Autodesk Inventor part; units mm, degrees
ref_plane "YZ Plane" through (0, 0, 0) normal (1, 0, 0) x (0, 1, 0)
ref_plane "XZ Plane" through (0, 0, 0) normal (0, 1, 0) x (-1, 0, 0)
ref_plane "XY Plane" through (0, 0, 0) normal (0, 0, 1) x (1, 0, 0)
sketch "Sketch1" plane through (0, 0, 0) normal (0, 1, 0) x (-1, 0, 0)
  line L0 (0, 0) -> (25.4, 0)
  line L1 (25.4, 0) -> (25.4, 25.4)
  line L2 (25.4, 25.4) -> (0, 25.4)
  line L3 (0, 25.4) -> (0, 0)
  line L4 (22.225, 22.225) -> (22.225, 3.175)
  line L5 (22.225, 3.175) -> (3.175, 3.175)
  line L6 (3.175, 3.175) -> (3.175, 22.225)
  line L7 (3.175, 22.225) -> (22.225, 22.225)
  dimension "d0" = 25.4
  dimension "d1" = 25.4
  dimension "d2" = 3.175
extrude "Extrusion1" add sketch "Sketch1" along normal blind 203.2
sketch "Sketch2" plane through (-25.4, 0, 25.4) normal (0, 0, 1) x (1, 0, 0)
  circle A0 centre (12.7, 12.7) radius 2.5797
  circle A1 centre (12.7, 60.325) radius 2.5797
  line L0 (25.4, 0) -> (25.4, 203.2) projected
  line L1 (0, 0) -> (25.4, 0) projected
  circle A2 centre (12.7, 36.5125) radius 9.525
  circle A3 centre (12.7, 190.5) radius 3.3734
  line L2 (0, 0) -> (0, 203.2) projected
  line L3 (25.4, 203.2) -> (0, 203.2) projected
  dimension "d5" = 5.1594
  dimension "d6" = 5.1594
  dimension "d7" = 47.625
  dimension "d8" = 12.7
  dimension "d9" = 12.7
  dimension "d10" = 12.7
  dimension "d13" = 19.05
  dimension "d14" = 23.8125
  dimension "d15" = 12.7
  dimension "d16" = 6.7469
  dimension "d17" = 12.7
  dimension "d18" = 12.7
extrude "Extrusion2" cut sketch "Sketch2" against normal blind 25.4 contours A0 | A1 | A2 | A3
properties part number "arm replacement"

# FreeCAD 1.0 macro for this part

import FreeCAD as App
import Part
import Sketcher
from FreeCAD import Vector
Q = App.Units.Quantity

doc = App.newDocument("Part")
params = doc.addObject("Spreadsheet::Sheet", "Params")
for row, (alias, value) in enumerate([
    ("sketch1_width", "1 in"),
    ("pad1_length", "8 in"),
    ("sketch2_diameter", "0.75 in"),
    ("sketch2_diameter2", "0.203126 in"),
    ("sketch2_diameter3", "0.265622 in"),
    ("pocket1_length", "1 in"),
], start=1):
    params.set(f"A{row}", alias)
    params.set(f"B{row}", "=" + value)
    params.setAlias(f"B{row}", alias)

body = doc.addObject("PartDesign::Body", "Body")

sketch1 = doc.addObject("Sketcher::SketchObject", "Sketch")
body.addObject(sketch1)
sketch1.AttachmentSupport = (doc.XZ_Plane, [""])
sketch1.MapMode = "FlatFace"
sketch1.addGeometry(Part.LineSegment(Vector(0, 25, 0), Vector(0, 0, 0)), False)
sketch1.addGeometry(Part.LineSegment(Vector(0, 0, 0), Vector(-25, 0, 0)), False)
sketch1.addGeometry(Part.LineSegment(Vector(-25, 0, 0), Vector(-25, 25, 0)), False)
sketch1.addGeometry(Part.LineSegment(Vector(-25, 25, 0), Vector(0, 25, 0)), False)
sketch1.addGeometry(Part.LineSegment(Vector(-3, 22, 0), Vector(-22, 22, 0)), False)
sketch1.addGeometry(Part.LineSegment(Vector(-22, 22, 0), Vector(-22, 3, 0)), False)
sketch1.addGeometry(Part.LineSegment(Vector(-22, 3, 0), Vector(-3, 3, 0)), False)
sketch1.addGeometry(Part.LineSegment(Vector(-3, 3, 0), Vector(-3, 22, 0)), False)
sketch1.addConstraint(Sketcher.Constraint("Coincident", 0, 2, 1, 1))
sketch1.addConstraint(Sketcher.Constraint("Coincident", 1, 2, 2, 1))
sketch1.addConstraint(Sketcher.Constraint("Coincident", 2, 2, 3, 1))
sketch1.addConstraint(Sketcher.Constraint("Coincident", 3, 2, 0, 1))
sketch1.addConstraint(Sketcher.Constraint("Coincident", 4, 2, 5, 1))
sketch1.addConstraint(Sketcher.Constraint("Coincident", 5, 2, 6, 1))
sketch1.addConstraint(Sketcher.Constraint("Coincident", 6, 2, 7, 1))
sketch1.addConstraint(Sketcher.Constraint("Coincident", 7, 2, 4, 1))
sketch1.addConstraint(Sketcher.Constraint("Vertical", 0))
sketch1.addConstraint(Sketcher.Constraint("Horizontal", 1))
sketch1.addConstraint(Sketcher.Constraint("Vertical", 2))
sketch1.addConstraint(Sketcher.Constraint("Horizontal", 3))
sketch1.addConstraint(Sketcher.Constraint("Horizontal", 4))
sketch1.addConstraint(Sketcher.Constraint("Vertical", 5))
sketch1.addConstraint(Sketcher.Constraint("Horizontal", 6))
sketch1.addConstraint(Sketcher.Constraint("Vertical", 7))
sketch1.addConstraint(Sketcher.Constraint("Coincident", 0, 2, -1, 1))
sketch1.addConstraint(Sketcher.Constraint("Equal", 3, 0))
sketch1.addConstraint(Sketcher.Constraint("Equal", 6, 5))
sketch1.addConstraint(Sketcher.Constraint("DistanceX", 1, 2, 1, 1, Q("1 in")))
sketch1.addConstraint(Sketcher.Constraint("DistanceY", -1, 1, 5, 2, Q("0.125 in")))
sketch1.addConstraint(Sketcher.Constraint("DistanceX", 6, 2, -1, 1, Q("0.125 in")))
sketch1.addConstraint(Sketcher.Constraint("DistanceX", 2, 2, 4, 2, Q("0.125 in")))
sketch1.setExpression("Constraints[19]", "Params.sketch1_width")
pad1 = doc.addObject("PartDesign::Pad", "Pad")
body.addObject(pad1)
pad1.Profile = sketch1
pad1.setExpression("Length", "Params.pad1_length")
pad1.Reversed = True

sketch2 = doc.addObject("Sketcher::SketchObject", "Sketch001")
body.addObject(sketch2)
sketch2.AttachmentSupport = (doc.XY_Plane, [""])
sketch2.MapMode = "FlatFace"
sketch2.AttachmentOffset = App.Placement(Vector(0, 0, 1 * 25.4), App.Rotation())
sketch2.addGeometry(Part.Circle(Vector(-12.7, 12.7, 0), Vector(0, 0, 1), 2.6), False)
sketch2.addGeometry(Part.Circle(Vector(-12.7, 60.3, 0), Vector(0, 0, 1), 2.6), False)
sketch2.addGeometry(Part.Circle(Vector(-12.7, 36.5, 0), Vector(0, 0, 1), 9.5), False)
sketch2.addGeometry(Part.Circle(Vector(-12.7, 190.5, 0), Vector(0, 0, 1), 3.4), False)
sketch2.addConstraint(Sketcher.Constraint("Equal", 0, 1))
sketch2.addConstraint(Sketcher.Constraint("Vertical", 0, 3, 1, 3))
sketch2.addConstraint(Sketcher.Constraint("Vertical", 1, 3, 2, 3))
sketch2.addConstraint(Sketcher.Constraint("Vertical", 2, 3, 3, 3))
sketch2.addConstraint(Sketcher.Constraint("Diameter", 2, Q("0.75 in")))
sketch2.addConstraint(Sketcher.Constraint("Diameter", 0, Q("0.203126 in")))
sketch2.addConstraint(Sketcher.Constraint("Diameter", 3, Q("0.265622 in")))
sketch2.addConstraint(Sketcher.Constraint("DistanceX", 0, 3, -1, 1, Q("0.5 in")))
sketch2.addConstraint(Sketcher.Constraint("DistanceY", -1, 1, 0, 3, Q("0.5 in")))
sketch2.addConstraint(Sketcher.Constraint("DistanceY", 0, 3, 1, 3, Q("1.875 in")))
sketch2.addConstraint(Sketcher.Constraint("DistanceY", 2, 3, 1, 3, Q("0.9375 in")))
sketch2.addConstraint(Sketcher.Constraint("DistanceY", 0, 3, 3, 3, Q("7 in")))
sketch2.setExpression("Constraints[4]", "Params.sketch2_diameter")
sketch2.setExpression("Constraints[5]", "Params.sketch2_diameter2")
sketch2.setExpression("Constraints[6]", "Params.sketch2_diameter3")
pocket1 = doc.addObject("PartDesign::Pocket", "Pocket")
body.addObject(pocket1)
pocket1.Profile = sketch2
pocket1.setExpression("Length", "Params.pocket1_length")

doc.recompute()
